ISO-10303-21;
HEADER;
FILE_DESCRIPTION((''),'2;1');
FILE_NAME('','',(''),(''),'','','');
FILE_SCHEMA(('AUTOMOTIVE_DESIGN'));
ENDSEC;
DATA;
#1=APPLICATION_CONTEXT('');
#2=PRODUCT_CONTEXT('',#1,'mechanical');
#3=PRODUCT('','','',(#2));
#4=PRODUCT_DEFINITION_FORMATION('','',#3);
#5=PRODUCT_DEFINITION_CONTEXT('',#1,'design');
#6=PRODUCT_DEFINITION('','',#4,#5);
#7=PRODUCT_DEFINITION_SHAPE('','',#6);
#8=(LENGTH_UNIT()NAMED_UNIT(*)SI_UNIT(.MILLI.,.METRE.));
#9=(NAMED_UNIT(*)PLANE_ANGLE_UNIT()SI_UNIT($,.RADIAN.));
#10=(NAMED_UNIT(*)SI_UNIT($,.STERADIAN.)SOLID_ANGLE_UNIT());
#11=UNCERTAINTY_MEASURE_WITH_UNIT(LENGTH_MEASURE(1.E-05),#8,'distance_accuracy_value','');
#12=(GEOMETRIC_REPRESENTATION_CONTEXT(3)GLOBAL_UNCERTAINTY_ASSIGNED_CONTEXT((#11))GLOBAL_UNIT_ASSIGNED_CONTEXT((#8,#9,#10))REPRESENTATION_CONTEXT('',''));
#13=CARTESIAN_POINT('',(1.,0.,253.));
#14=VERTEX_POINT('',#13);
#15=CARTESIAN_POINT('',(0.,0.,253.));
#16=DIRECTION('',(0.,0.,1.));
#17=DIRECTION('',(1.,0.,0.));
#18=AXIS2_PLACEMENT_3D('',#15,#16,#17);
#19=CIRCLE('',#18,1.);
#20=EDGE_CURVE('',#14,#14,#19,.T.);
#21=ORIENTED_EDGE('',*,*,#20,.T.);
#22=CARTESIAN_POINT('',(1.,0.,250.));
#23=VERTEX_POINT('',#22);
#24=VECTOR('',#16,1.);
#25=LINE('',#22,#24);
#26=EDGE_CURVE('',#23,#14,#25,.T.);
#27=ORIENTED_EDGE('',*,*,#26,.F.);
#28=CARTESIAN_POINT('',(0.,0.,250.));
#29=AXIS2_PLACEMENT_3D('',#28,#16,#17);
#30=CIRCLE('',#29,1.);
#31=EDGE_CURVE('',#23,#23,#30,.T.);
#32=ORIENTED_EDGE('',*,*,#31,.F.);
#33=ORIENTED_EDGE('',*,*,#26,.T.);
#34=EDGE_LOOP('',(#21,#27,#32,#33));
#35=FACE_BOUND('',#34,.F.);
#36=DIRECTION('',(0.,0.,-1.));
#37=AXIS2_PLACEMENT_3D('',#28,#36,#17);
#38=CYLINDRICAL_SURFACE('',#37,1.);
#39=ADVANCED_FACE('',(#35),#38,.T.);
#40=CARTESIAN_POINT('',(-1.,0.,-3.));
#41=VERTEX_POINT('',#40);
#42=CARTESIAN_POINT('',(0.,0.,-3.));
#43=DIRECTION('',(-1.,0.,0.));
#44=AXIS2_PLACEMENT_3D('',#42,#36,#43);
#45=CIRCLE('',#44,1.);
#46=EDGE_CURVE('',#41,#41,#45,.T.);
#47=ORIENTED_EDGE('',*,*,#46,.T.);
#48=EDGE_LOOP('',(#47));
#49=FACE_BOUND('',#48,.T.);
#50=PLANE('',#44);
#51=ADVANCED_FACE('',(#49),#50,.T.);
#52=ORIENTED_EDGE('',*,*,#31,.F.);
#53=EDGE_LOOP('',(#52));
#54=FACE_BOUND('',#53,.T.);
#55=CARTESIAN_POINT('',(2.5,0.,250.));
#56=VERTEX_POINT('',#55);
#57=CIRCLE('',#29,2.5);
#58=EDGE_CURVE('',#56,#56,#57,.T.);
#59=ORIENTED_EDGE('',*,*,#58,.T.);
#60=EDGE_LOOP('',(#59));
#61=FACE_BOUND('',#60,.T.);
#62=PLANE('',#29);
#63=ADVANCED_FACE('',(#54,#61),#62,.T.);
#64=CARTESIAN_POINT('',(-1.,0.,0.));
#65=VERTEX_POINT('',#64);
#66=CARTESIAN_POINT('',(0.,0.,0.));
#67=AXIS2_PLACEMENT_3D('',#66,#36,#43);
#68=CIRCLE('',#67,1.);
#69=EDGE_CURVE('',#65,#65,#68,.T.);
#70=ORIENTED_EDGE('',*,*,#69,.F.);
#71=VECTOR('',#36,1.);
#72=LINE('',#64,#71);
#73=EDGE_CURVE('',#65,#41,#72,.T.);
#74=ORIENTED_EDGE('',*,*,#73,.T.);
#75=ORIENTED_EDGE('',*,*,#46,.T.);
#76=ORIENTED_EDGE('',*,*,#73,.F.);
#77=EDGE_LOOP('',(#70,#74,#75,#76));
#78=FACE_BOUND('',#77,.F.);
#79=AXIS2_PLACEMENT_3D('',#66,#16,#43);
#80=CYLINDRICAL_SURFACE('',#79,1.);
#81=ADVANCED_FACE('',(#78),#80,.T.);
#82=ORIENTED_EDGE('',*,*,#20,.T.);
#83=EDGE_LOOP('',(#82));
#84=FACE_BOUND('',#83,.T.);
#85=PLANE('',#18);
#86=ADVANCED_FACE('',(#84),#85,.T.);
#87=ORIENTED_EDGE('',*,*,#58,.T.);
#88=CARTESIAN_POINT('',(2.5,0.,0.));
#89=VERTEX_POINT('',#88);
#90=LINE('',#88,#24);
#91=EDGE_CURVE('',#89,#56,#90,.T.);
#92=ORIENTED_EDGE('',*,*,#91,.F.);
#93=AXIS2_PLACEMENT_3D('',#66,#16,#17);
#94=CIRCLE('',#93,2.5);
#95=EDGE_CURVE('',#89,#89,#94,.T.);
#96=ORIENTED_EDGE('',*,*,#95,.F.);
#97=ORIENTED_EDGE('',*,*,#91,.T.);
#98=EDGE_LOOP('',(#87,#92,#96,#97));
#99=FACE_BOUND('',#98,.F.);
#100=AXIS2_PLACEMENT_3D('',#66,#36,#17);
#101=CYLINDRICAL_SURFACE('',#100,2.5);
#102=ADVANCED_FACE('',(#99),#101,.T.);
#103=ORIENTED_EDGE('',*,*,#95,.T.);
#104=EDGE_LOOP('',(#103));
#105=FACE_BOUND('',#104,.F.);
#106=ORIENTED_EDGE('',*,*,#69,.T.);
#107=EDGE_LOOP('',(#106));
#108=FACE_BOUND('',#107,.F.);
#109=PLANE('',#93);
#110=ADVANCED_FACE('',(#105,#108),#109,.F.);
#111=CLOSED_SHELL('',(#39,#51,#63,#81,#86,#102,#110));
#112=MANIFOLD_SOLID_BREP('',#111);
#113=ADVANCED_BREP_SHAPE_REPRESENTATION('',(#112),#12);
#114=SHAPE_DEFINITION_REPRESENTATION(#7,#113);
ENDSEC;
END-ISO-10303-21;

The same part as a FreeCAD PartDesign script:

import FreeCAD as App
import Part
import Sketcher

V = App.Vector

doc = App.newDocument("Part")
params = doc.addObject("Spreadsheet::Sheet", "Params")
for row, (alias, value) in enumerate([
    ("sketch1_diameter", "5 mm"),
    ("pad1_length", "250 mm"),
    ("sketch2_diameter", "2 mm"),
    ("pad2_length", "3 mm"),
    ("sketch3_diameter", "2 mm"),
    ("pad3_length", "3 mm"),
], start=1):
    params.set(f"A{row}", alias)
    params.set(f"B{row}", "=" + value)
    params.setAlias(f"B{row}", alias)

body = doc.addObject("PartDesign::Body", "Body")

sketch1 = body.newObject("Sketcher::SketchObject", "Sketch")
sketch1.AttachmentSupport = (doc.getObject("XY_Plane"), [""])
sketch1.MapMode = "FlatFace"
sketch1.addGeometry(Part.Circle(V(0, 0, 0), V(0, 0, 1), 2.5), False)
sketch1.addConstraint(Sketcher.Constraint("Coincident", 0, 3, -1, 1))
sketch1.addConstraint(Sketcher.Constraint("Diameter", 0, 5.0))
sketch1.setExpression("Constraints[1]", "Params.sketch1_diameter")
pad1 = body.newObject("PartDesign::Pad", "Pad")
pad1.Profile = sketch1
pad1.setExpression("Length", "Params.pad1_length")

sketch2 = body.newObject("Sketcher::SketchObject", "Sketch001")
sketch2.AttachmentSupport = (doc.getObject("XY_Plane"), [""])
sketch2.MapMode = "FlatFace"
sketch2.AttachmentOffset = App.Placement(V(0, 0, 250), App.Rotation())
sketch2.addGeometry(Part.Circle(V(0, 0, 0), V(0, 0, 1), 1), False)
sketch2.addConstraint(Sketcher.Constraint("Coincident", 0, 3, -1, 1))
sketch2.addConstraint(Sketcher.Constraint("Diameter", 0, 2.0))
sketch2.setExpression("Constraints[1]", "Params.sketch2_diameter")
pad2 = body.newObject("PartDesign::Pad", "Pad001")
pad2.Profile = sketch2
pad2.setExpression("Length", "Params.pad2_length")

sketch3 = body.newObject("Sketcher::SketchObject", "Sketch002")
sketch3.AttachmentSupport = (doc.getObject("XY_Plane"), [""])
sketch3.MapMode = "FlatFace"
sketch3.addGeometry(Part.Circle(V(0, 0, 0), V(0, 0, 1), 1), False)
sketch3.addConstraint(Sketcher.Constraint("Coincident", 0, 3, -1, 1))
sketch3.addConstraint(Sketcher.Constraint("Diameter", 0, 2.0))
sketch3.setExpression("Constraints[1]", "Params.sketch3_diameter")
pad3 = body.newObject("PartDesign::Pad", "Pad002")
pad3.Profile = sketch3
pad3.setExpression("Length", "Params.pad3_length")
pad3.Reversed = True

doc.recompute()
